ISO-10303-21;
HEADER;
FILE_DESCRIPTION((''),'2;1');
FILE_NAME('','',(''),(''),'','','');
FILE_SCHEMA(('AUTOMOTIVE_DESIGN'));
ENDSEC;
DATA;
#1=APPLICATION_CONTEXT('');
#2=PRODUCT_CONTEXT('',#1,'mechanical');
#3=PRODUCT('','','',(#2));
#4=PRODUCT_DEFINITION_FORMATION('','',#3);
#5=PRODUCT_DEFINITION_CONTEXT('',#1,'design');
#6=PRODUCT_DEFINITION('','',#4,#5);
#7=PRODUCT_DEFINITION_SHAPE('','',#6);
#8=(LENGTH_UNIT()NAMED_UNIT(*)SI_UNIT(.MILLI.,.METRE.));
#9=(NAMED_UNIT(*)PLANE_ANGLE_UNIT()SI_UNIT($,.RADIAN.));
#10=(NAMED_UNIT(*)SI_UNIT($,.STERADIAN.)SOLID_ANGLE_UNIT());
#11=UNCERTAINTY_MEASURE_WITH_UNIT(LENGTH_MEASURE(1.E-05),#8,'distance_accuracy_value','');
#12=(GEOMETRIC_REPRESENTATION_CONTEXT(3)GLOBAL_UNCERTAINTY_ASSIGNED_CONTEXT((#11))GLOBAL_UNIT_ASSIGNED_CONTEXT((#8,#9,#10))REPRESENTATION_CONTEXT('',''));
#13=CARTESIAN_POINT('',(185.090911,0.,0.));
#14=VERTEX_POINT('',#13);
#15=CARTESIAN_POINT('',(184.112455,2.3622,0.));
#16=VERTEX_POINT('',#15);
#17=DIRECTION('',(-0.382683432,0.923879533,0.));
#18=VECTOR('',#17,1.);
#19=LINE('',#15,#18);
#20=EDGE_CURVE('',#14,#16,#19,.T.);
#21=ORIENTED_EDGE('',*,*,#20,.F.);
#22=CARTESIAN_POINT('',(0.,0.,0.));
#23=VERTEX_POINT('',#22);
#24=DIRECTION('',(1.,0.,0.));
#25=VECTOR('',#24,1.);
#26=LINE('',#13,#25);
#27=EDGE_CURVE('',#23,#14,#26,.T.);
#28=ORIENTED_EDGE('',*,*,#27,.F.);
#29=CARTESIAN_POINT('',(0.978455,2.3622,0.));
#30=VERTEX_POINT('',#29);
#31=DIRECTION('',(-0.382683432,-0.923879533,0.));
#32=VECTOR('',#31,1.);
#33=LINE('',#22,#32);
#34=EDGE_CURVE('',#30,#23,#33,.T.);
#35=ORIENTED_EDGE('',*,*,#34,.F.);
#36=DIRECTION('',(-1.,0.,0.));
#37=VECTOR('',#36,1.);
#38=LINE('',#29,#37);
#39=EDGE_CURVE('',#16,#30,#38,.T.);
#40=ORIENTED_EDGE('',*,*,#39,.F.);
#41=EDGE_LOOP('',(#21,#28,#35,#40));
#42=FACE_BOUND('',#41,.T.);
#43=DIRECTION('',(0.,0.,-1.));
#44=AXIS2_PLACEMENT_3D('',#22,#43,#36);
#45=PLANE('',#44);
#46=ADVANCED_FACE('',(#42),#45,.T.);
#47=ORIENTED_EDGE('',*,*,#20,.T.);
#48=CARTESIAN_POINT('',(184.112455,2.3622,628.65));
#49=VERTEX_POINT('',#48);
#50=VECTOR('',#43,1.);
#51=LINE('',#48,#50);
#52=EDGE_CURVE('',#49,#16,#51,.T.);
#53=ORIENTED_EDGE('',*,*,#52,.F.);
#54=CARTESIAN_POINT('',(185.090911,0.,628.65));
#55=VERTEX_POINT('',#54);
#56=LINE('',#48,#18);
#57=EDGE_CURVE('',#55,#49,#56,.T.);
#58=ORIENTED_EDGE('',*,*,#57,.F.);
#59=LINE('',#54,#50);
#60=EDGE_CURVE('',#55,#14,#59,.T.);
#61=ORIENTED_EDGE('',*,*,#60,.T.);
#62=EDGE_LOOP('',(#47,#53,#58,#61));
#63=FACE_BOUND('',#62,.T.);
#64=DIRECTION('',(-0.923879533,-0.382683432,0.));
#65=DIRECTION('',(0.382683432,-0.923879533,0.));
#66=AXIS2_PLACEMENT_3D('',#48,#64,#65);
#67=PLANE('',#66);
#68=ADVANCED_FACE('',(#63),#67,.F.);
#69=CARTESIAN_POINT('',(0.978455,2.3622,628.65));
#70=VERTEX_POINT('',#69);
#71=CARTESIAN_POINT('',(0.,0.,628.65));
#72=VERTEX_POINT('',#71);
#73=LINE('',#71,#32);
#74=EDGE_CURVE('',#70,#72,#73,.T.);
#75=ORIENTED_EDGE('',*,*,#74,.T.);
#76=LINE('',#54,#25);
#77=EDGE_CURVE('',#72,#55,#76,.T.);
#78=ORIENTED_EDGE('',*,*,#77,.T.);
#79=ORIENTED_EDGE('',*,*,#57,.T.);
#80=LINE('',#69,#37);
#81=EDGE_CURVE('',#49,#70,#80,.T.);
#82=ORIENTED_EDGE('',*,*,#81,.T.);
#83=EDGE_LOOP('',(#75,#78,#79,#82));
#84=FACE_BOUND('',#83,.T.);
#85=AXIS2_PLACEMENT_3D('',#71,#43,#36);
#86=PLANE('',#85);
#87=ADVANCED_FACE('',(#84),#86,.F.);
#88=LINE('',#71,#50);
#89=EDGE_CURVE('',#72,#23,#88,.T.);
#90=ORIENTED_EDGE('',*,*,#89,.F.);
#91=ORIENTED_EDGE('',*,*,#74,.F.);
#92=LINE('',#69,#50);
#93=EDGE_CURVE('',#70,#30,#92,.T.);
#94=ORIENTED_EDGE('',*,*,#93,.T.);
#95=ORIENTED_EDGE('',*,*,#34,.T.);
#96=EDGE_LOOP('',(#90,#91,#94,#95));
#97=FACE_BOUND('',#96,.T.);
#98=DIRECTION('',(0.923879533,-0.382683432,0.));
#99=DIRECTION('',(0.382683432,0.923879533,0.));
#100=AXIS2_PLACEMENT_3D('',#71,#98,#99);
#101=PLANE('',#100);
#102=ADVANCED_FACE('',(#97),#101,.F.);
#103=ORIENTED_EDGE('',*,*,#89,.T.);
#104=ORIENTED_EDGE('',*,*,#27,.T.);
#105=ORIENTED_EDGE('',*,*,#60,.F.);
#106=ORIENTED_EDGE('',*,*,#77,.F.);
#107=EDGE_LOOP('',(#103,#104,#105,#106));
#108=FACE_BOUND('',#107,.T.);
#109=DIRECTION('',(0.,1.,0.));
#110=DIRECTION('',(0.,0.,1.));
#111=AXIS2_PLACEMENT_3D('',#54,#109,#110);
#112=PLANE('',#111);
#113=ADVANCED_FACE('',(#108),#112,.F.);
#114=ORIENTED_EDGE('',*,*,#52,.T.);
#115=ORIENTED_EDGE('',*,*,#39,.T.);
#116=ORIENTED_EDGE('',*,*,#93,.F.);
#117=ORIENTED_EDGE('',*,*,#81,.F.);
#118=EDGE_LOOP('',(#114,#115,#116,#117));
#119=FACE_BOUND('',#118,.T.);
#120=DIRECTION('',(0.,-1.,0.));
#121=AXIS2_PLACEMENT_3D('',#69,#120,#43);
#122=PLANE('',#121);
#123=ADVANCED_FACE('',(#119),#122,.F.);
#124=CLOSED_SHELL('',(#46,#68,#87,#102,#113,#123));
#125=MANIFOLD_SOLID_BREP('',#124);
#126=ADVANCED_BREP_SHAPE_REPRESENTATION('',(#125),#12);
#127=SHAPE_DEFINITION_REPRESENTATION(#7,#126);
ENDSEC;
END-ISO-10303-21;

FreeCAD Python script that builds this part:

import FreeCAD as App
import Part
import Sketcher
from FreeCAD import Vector
Q = App.Units.Quantity


def add_polygon(sketch, points):
    """Adds a closed chain of lines whose ends are joined by coincident constraints."""
    first, n = sketch.GeometryCount, len(points)
    for a, b in zip(points, points[1:] + points[:1]):
        sketch.addGeometry(Part.LineSegment(App.Vector(*a, 0), App.Vector(*b, 0)), False)
    for i in range(n):
        sketch.addConstraint(Sketcher.Constraint("Coincident", first + i, 2, first + (i + 1) % n, 1))

doc = App.newDocument("Part")
params = doc.addObject("Spreadsheet::Sheet", "Params")
for row, (alias, value) in enumerate([
    ("sketch1_width", "7.21 in"),
    ("pad1_length", "24.75 in"),
], start=1):
    params.set(f"A{row}", alias)
    params.set(f"B{row}", "=" + value)
    params.setAlias(f"B{row}", alias)

body = doc.addObject("PartDesign::Body", "Body")

# Sketch on XY plane
sketch1 = body.newObject("Sketcher::SketchObject", "Sketch")
sketch1.AttachmentSupport = (doc.getObject("XY_Plane"), [""])
sketch1.MapMode = "FlatFace"
add_polygon(sketch1, [(1, 2.4), (0, 0), (185.1, 0), (184.1, 2.4)])  # lines 0-3
sketch1.addConstraint(Sketcher.Constraint("Horizontal", 1))
sketch1.addConstraint(Sketcher.Constraint("Horizontal", 3))
sketch1.addConstraint(Sketcher.Constraint("Coincident", 0, 2, -1, 1))
sketch1.addConstraint(Sketcher.Constraint("Equal", 0, 2))
sketch1.addConstraint(Sketcher.Constraint("DistanceX", 3, 2, 3, 1, Q("7.21 in")))
sketch1.addConstraint(Sketcher.Constraint("Angle", 0, Q("-112.5 deg")))
sketch1.addConstraint(Sketcher.Constraint("DistanceY", -1, 1, 2, 2, Q("0.093 in")))
sketch1.setExpression("Constraints[8]", "Params.sketch1_width")
pad1 = body.newObject("PartDesign::Pad", "Pad")
pad1.Profile = sketch1
pad1.setExpression("Length", "Params.pad1_length")

doc.recompute()
